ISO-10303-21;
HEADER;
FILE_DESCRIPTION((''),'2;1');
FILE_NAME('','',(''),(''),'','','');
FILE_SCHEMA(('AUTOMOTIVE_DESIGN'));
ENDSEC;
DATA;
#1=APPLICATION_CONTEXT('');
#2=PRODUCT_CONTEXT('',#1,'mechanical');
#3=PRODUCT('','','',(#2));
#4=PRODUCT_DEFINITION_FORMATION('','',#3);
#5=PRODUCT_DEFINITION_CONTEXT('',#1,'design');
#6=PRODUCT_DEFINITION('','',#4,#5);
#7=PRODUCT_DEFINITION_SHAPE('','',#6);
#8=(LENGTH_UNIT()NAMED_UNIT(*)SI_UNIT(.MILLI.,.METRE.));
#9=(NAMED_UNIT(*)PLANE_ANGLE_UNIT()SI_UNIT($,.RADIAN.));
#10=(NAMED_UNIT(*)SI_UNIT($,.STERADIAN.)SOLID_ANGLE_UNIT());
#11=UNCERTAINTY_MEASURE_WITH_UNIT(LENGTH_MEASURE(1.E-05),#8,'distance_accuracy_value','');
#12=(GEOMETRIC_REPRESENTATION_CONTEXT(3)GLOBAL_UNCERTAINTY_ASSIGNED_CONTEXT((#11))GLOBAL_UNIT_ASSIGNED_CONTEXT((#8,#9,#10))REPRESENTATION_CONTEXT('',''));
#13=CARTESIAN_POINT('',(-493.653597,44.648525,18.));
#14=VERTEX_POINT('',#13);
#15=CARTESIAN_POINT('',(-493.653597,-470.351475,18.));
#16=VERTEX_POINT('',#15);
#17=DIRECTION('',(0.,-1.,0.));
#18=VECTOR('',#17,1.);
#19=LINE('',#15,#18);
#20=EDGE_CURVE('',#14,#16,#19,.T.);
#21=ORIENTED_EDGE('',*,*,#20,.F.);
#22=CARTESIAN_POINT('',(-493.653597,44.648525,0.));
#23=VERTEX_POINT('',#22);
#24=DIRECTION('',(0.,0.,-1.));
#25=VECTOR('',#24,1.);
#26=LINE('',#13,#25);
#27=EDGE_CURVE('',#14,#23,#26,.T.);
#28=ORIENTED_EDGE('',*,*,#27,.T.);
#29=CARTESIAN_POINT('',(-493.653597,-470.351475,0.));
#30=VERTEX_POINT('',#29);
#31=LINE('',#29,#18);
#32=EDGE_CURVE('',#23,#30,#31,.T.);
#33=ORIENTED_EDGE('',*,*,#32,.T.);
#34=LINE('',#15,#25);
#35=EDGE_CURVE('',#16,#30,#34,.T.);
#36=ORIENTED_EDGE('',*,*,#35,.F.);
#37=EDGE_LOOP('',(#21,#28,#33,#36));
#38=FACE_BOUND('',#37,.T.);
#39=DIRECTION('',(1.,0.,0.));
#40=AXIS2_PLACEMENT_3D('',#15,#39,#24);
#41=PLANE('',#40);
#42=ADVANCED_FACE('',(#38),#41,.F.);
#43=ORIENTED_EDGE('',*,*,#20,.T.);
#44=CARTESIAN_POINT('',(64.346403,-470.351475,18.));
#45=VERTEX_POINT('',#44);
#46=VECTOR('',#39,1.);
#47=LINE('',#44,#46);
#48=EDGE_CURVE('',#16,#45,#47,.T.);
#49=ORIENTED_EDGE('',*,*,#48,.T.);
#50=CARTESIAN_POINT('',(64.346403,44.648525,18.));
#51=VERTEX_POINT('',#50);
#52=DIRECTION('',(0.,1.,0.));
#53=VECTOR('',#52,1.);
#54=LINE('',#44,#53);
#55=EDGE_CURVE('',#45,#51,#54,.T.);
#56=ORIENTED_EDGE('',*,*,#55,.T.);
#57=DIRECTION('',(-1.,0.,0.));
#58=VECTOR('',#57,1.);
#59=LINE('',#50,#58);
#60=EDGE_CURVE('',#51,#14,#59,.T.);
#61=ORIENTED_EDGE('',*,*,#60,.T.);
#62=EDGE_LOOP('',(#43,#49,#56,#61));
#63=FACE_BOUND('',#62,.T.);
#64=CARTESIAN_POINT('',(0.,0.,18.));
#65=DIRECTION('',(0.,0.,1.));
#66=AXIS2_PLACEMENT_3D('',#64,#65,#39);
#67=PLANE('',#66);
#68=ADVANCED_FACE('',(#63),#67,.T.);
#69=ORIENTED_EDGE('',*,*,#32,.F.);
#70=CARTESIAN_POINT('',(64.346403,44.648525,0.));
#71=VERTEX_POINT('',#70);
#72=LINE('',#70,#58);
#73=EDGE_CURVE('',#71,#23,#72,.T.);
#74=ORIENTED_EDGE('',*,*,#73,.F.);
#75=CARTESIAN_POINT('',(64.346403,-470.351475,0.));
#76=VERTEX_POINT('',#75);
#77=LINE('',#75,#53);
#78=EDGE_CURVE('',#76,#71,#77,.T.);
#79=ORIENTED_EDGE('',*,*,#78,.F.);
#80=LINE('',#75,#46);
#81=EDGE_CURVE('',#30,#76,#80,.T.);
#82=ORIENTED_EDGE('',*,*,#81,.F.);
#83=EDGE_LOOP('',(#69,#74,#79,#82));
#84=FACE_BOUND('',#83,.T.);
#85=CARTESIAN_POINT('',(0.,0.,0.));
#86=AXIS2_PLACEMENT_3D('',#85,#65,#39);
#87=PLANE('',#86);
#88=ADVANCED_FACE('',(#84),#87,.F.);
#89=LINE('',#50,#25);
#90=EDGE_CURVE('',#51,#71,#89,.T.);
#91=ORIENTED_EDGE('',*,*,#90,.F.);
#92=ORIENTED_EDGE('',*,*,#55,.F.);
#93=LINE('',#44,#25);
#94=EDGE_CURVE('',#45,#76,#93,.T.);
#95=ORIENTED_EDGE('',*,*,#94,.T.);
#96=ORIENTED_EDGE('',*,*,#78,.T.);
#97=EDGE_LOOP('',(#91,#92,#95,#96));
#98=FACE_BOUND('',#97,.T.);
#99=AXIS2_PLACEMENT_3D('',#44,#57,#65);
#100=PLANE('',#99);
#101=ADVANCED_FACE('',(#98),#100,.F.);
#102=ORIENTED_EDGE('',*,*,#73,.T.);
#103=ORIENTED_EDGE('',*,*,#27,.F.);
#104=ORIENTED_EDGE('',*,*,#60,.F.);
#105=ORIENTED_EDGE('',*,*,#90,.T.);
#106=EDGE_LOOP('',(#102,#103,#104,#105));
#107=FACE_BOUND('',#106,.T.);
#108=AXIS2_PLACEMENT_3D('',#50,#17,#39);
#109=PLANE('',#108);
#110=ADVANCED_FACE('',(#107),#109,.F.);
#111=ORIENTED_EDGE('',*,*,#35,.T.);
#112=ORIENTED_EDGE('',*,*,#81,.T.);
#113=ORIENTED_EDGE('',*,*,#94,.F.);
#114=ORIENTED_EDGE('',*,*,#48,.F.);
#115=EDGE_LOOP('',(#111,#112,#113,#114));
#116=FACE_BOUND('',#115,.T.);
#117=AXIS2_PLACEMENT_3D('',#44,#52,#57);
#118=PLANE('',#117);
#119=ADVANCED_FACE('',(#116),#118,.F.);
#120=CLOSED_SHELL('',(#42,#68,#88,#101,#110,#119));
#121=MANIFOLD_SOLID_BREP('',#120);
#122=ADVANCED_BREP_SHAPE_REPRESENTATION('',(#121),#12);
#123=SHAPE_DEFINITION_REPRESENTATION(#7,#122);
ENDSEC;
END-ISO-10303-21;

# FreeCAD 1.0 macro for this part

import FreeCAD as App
import Part
import Sketcher
from FreeCAD import Vector
Q = App.Units.Quantity


def add_polygon(sketch, points):
    """Adds a closed chain of lines whose ends are joined by coincident constraints."""
    first, n = sketch.GeometryCount, len(points)
    for a, b in zip(points, points[1:] + points[:1]):
        sketch.addGeometry(Part.LineSegment(App.Vector(*a, 0), App.Vector(*b, 0)), False)
    for i in range(n):
        sketch.addConstraint(Sketcher.Constraint("Coincident", first + i, 2, first + (i + 1) % n, 1))

doc = App.newDocument("Part")
body = doc.addObject("PartDesign::Body", "Body")

sketch1 = body.newObject("Sketcher::SketchObject", "Sketch")
sketch1.AttachmentSupport = (doc.getObject("XY_Plane"), [""])
sketch1.MapMode = "FlatFace"
add_polygon(sketch1, [(-493.653597, 44.648525), (-493.653597, -470.351475), (64.346403, -470.351475), (64.346403, 44.648525)])
sketch1.addConstraint([
    Sketcher.Constraint("Vertical", 0),
    Sketcher.Constraint("Horizontal", 1),
    Sketcher.Constraint("Vertical", 2),
    Sketcher.Constraint("Horizontal", 3),
    Sketcher.Constraint("DistanceX", 1, 1, 1, 2, Q("558 mm")),
    Sketcher.Constraint("DistanceY", 0, 2, 0, 1, Q("515 mm")),
    Sketcher.Constraint("DistanceX", 0, 2, -1, 1, Q("493.653597 mm")),
    Sketcher.Constraint("DistanceY", 0, 2, -1, 1, Q("470.351475 mm")),
])
pad1 = body.newObject("PartDesign::Pad", "Pad")
pad1.Profile = sketch1
pad1.Length = 18

doc.recompute()
